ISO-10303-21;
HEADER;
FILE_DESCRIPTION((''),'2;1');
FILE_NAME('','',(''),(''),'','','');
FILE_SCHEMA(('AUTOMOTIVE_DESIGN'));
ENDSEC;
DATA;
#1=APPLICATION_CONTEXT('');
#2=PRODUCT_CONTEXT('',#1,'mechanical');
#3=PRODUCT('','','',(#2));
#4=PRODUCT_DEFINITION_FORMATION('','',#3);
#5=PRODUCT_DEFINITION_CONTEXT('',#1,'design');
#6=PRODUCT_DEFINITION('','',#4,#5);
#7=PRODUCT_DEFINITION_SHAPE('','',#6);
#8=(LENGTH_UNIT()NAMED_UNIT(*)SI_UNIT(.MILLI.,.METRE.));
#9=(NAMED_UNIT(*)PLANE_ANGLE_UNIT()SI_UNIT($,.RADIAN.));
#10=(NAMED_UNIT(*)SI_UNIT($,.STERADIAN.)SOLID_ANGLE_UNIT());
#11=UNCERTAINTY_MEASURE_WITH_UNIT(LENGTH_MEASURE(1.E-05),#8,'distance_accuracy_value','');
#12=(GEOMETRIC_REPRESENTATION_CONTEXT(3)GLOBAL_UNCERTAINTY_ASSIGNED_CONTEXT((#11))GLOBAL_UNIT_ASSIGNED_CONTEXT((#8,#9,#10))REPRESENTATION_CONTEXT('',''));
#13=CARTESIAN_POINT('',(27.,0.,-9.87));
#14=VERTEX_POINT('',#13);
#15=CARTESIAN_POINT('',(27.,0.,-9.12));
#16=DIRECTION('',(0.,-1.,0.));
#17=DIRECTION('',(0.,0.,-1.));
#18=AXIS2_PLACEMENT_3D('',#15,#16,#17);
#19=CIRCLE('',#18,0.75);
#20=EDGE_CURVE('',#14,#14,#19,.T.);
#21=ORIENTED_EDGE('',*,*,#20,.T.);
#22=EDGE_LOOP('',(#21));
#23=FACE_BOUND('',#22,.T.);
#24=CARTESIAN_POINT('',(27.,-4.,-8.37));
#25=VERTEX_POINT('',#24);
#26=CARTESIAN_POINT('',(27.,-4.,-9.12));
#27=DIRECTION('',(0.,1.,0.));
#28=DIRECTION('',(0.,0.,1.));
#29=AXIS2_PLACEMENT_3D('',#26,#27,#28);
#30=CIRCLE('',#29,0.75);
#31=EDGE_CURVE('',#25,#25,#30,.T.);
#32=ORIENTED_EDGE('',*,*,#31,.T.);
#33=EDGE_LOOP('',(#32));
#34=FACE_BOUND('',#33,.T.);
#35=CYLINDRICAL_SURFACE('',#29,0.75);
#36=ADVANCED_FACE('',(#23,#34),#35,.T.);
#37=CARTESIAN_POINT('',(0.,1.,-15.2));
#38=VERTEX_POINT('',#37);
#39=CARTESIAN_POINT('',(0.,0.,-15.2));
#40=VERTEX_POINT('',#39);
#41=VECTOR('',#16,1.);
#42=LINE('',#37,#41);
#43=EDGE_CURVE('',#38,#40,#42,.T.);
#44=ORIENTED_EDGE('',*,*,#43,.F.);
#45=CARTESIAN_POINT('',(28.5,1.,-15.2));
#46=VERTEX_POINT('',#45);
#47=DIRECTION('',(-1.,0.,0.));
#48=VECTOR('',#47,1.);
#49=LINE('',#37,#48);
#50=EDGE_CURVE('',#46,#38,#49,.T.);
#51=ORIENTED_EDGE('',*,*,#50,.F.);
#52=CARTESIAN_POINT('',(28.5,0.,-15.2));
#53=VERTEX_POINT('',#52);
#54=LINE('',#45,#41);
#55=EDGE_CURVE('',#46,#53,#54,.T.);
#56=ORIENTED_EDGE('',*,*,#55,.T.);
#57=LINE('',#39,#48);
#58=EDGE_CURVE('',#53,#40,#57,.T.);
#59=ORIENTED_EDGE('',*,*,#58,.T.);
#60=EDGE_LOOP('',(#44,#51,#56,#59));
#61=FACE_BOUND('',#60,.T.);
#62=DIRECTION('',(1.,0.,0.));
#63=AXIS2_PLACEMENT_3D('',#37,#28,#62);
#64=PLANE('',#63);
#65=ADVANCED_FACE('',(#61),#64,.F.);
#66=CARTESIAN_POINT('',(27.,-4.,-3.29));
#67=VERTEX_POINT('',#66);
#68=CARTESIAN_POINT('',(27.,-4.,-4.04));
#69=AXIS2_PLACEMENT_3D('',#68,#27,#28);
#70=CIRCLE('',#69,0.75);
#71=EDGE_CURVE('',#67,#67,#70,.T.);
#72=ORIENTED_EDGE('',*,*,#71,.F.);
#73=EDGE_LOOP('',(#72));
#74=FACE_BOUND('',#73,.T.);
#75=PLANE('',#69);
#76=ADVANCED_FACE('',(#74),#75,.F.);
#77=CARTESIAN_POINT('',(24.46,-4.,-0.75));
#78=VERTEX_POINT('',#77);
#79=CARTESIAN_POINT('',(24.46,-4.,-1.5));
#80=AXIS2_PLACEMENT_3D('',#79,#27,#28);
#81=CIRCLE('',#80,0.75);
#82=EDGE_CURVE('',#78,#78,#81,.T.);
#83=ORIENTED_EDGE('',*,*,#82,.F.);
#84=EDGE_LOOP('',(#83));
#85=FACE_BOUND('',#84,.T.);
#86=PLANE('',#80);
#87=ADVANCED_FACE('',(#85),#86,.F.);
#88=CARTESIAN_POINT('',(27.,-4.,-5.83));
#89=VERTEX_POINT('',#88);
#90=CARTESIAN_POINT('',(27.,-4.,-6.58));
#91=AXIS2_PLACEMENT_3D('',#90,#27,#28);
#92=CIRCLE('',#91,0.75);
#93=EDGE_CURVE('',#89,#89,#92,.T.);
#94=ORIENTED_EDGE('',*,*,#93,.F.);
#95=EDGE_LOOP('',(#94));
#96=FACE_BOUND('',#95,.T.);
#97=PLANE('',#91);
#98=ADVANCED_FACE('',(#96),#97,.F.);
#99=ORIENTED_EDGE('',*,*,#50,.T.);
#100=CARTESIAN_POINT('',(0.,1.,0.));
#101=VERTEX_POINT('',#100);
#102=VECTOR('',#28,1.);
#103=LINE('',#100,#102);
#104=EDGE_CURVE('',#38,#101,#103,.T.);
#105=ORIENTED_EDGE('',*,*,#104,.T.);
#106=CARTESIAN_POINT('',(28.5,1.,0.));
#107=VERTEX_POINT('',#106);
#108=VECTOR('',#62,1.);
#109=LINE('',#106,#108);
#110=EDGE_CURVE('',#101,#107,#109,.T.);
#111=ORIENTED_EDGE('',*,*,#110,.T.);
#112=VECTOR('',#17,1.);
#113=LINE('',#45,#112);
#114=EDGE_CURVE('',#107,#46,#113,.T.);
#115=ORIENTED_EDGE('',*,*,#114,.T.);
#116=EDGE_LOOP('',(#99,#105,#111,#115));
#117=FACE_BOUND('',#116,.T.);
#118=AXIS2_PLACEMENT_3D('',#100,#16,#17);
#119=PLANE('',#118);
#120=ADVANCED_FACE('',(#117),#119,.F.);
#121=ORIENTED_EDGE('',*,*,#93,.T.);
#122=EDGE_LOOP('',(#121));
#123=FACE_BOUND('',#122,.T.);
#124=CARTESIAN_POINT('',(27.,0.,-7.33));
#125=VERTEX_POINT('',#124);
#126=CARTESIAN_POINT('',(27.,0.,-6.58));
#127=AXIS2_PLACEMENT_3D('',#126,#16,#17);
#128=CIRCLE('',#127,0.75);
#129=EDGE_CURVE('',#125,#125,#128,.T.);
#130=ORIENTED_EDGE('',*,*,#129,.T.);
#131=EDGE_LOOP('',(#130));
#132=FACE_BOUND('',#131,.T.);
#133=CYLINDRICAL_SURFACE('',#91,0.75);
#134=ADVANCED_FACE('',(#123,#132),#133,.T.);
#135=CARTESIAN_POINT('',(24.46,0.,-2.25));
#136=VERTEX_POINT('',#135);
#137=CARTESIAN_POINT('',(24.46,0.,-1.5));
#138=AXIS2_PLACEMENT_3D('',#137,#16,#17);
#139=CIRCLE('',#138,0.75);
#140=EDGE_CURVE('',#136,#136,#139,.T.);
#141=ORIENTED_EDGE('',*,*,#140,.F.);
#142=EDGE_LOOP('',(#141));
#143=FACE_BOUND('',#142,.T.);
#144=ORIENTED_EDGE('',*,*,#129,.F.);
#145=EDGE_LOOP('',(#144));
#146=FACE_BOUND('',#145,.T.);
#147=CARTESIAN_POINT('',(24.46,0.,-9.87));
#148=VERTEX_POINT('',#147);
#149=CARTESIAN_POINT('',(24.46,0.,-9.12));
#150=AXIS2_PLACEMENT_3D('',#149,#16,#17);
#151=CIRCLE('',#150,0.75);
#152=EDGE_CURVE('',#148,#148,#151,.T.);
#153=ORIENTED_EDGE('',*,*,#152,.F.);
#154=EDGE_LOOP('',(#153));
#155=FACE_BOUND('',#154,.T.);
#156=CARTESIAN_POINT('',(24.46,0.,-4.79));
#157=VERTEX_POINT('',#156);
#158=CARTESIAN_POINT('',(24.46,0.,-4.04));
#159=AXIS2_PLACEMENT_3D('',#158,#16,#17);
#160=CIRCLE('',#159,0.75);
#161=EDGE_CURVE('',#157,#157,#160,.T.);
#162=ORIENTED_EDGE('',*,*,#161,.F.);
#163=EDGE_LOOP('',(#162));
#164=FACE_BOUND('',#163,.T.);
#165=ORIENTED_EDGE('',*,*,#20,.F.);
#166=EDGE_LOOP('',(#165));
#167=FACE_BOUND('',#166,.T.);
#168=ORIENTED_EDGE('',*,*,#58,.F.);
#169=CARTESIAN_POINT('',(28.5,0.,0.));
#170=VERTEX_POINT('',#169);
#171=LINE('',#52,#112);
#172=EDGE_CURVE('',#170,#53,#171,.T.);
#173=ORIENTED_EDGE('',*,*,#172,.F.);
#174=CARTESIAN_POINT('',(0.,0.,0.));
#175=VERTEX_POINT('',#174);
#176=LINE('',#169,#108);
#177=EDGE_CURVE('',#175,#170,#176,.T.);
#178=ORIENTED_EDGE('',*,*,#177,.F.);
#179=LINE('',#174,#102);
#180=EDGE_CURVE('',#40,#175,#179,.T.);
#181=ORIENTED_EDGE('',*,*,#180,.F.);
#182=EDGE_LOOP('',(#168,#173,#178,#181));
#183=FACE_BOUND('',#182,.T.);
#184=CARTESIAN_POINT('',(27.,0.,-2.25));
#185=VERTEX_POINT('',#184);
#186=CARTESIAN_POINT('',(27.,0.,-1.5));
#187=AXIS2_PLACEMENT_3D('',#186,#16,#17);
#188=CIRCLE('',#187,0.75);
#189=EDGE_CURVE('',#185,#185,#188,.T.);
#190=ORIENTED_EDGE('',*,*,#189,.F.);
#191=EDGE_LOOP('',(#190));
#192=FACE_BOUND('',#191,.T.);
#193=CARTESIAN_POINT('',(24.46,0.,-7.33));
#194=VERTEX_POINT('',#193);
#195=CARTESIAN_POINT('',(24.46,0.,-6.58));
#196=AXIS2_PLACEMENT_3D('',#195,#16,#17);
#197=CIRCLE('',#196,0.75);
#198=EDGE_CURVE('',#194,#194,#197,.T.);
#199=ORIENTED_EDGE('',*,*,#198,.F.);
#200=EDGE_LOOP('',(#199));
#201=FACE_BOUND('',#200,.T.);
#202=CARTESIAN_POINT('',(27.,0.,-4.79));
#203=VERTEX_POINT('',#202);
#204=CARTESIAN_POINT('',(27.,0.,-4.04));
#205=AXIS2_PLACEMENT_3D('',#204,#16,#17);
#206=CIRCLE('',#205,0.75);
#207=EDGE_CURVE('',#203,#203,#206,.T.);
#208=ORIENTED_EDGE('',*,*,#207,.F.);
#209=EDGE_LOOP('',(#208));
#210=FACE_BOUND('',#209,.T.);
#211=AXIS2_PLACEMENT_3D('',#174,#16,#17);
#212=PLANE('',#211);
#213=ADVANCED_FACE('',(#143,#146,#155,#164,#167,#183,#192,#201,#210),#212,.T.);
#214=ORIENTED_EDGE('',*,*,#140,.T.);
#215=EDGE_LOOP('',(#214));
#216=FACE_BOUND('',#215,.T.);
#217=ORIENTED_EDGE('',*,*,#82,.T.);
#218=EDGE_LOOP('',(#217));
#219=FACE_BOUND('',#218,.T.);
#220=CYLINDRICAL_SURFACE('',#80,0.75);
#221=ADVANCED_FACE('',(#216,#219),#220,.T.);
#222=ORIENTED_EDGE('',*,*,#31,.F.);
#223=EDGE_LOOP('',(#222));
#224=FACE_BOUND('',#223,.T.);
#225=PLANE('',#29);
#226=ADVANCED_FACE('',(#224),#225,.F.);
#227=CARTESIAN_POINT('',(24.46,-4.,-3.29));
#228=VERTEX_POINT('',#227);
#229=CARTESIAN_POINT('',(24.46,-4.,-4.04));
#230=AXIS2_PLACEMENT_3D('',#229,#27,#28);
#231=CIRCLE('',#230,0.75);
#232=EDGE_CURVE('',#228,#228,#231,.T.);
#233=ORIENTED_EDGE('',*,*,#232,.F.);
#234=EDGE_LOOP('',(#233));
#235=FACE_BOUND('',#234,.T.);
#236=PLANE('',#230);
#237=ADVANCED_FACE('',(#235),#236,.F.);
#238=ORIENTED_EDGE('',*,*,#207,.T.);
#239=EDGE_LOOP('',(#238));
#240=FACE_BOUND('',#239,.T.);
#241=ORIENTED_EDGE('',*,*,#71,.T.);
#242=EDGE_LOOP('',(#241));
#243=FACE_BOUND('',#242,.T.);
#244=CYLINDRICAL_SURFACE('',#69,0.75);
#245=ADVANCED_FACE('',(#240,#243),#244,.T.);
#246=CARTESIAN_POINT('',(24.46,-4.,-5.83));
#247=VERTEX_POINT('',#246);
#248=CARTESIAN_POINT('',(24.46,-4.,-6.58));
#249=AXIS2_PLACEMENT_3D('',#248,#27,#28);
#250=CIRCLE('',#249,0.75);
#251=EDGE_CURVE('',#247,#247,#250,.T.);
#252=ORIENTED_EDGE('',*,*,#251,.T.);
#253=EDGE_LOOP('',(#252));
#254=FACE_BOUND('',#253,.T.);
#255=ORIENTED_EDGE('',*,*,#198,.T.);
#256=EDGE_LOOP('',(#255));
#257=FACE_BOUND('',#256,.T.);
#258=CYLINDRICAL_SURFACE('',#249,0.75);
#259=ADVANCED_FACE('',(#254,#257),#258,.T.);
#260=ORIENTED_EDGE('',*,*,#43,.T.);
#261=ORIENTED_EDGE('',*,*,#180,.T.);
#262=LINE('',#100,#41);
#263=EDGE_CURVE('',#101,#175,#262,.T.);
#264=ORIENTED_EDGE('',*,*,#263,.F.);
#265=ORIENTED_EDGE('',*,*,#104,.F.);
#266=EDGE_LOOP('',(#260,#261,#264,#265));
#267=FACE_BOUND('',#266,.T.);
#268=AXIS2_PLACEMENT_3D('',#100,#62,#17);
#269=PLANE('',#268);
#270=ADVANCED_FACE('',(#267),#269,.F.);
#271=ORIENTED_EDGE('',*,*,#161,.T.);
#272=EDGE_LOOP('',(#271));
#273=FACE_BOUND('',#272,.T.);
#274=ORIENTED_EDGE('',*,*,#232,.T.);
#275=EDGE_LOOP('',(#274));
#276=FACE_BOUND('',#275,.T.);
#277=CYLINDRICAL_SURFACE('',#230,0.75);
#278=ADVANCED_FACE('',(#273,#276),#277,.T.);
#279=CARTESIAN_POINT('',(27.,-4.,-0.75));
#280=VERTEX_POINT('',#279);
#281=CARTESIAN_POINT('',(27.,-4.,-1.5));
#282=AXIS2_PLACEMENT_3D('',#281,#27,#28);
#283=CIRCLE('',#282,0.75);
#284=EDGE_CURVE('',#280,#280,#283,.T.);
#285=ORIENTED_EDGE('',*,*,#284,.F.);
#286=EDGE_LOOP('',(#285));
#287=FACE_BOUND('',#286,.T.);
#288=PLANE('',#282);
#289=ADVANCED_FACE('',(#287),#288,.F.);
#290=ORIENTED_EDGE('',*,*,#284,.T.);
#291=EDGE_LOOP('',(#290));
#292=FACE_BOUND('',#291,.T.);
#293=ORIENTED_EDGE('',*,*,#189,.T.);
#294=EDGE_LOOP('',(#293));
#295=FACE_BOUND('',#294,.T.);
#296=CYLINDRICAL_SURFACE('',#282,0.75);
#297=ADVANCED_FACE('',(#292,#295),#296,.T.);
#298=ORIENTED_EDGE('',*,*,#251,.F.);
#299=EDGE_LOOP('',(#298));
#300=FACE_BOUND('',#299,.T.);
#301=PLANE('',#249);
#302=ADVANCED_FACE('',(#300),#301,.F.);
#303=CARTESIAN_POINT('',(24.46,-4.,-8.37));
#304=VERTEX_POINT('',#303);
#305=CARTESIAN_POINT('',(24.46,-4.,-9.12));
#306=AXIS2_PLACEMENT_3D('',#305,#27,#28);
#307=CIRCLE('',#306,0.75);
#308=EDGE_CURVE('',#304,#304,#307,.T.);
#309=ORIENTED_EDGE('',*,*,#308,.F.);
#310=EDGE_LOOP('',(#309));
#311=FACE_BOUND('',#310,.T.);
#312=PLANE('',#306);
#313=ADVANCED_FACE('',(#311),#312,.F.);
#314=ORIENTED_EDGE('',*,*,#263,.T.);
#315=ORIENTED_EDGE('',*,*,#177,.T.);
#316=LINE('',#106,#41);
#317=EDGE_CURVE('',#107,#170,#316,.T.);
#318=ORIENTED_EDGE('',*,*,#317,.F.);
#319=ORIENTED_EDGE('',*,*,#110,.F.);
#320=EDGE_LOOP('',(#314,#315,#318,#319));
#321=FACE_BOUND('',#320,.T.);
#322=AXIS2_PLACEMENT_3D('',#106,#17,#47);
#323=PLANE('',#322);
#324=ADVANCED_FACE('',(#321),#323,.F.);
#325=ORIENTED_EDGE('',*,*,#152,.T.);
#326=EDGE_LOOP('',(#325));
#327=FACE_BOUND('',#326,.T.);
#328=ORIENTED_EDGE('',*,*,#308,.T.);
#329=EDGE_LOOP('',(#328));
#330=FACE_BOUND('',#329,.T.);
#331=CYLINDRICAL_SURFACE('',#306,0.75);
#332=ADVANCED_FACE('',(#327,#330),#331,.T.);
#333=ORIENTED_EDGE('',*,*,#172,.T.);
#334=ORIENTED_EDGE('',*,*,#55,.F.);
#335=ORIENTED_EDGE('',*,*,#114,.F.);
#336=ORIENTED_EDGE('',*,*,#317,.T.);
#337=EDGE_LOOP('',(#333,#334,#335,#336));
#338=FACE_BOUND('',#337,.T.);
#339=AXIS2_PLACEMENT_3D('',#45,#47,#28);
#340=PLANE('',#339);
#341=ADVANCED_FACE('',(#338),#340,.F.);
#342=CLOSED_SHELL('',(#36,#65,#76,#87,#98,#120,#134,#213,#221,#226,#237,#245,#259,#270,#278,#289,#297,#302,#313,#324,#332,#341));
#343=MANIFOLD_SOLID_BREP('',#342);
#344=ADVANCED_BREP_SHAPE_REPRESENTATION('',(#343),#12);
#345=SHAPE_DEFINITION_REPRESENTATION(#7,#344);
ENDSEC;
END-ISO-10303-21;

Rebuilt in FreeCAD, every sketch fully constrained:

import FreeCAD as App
import Part
import Sketcher
from FreeCAD import Vector

doc = App.newDocument("Part")
body = doc.addObject("PartDesign::Body", "Body")

# Sketch on XZ plane
sketch1 = body.newObject("Sketcher::SketchObject", "Sketch")
sketch1.AttachmentSupport = (doc.getObject("XZ_Plane"), [""])
sketch1.MapMode = "FlatFace"
sketch1.addGeometry([
    Part.LineSegment(Vector(0, -15, 0), Vector(0, 0, 0)),
    Part.LineSegment(Vector(0, 0, 0), Vector(28, 0, 0)),
    Part.LineSegment(Vector(28, 0, 0), Vector(28, -15, 0)),
    Part.LineSegment(Vector(28, -15, 0), Vector(0, -15, 0)),
], False)
sketch1.addConstraint([
    Sketcher.Constraint("Coincident", 0, 2, 1, 1),
    Sketcher.Constraint("Coincident", 1, 2, 2, 1),
    Sketcher.Constraint("Coincident", 2, 2, 3, 1),
    Sketcher.Constraint("Coincident", 3, 2, 0, 1),
    Sketcher.Constraint("Vertical", 0),
    Sketcher.Constraint("Horizontal", 1),
    Sketcher.Constraint("Vertical", 2),
    Sketcher.Constraint("Horizontal", 3),
    Sketcher.Constraint("Coincident", 0, 2, -1, 1),
    Sketcher.Constraint("DistanceX", 1, 1, 1, 2, 28.5),
    Sketcher.Constraint("DistanceY", 0, 1, 0, 2, 15.2),
])
pad1 = body.newObject("PartDesign::Pad", "Pad")
pad1.Profile = sketch1
pad1.Length = 1
pad1.Reversed = True

# Sketch on XZ plane
sketch2 = body.newObject("Sketcher::SketchObject", "Sketch001")
sketch2.AttachmentSupport = (doc.getObject("XZ_Plane"), [""])
sketch2.MapMode = "FlatFace"
sketch2.AttachmentOffset = App.Placement(Vector(0, 0, -1), App.Rotation())
sketch2.addGeometry([
    Part.Circle(Vector(27, -1.5, 0), Vector(0, 0, 1), 0.8),  # 0
    Part.Circle(Vector(24.5, -1.5, 0), Vector(0, 0, 1), 0.8),  # 1
    Part.Circle(Vector(24.5, -4, 0), Vector(0, 0, 1), 0.8),  # 2
    Part.Circle(Vector(27, -4, 0), Vector(0, 0, 1), 0.8),  # 3
    Part.Circle(Vector(24.5, -6.6, 0), Vector(0, 0, 1), 0.8),  # 4
    Part.Circle(Vector(27, -6.6, 0), Vector(0, 0, 1), 0.8),  # 5
    Part.Circle(Vector(24.5, -9.1, 0), Vector(0, 0, 1), 0.8),  # 6
    Part.Circle(Vector(27, -9.1, 0), Vector(0, 0, 1), 0.8),  # 7
], False)
sketch2.addConstraint([
    Sketcher.Constraint("Equal", 0, 1),
    Sketcher.Constraint("Equal", 1, 2),
    Sketcher.Constraint("Equal", 2, 3),
    Sketcher.Constraint("Equal", 3, 4),
    Sketcher.Constraint("Equal", 4, 5),
    Sketcher.Constraint("Equal", 5, 6),
    Sketcher.Constraint("Equal", 6, 7),
    Sketcher.Constraint("Horizontal", 0, 3, 1, 3),
    Sketcher.Constraint("Horizontal", 2, 3, 3, 3),
    Sketcher.Constraint("Horizontal", 4, 3, 5, 3),
    Sketcher.Constraint("Horizontal", 6, 3, 7, 3),
    Sketcher.Constraint("Vertical", 1, 3, 2, 3),
    Sketcher.Constraint("Vertical", 0, 3, 3, 3),
    Sketcher.Constraint("Vertical", 2, 3, 4, 3),
    Sketcher.Constraint("Vertical", 3, 3, 5, 3),
    Sketcher.Constraint("Vertical", 4, 3, 6, 3),
    Sketcher.Constraint("Vertical", 5, 3, 7, 3),
    Sketcher.Constraint("Diameter", 0, 1.5),
    Sketcher.Constraint("DistanceX", -1, 1, 0, 3, 27.0),
    Sketcher.Constraint("DistanceY", 0, 3, -1, 1, 1.5),
    Sketcher.Constraint("DistanceX", -1, 1, 1, 3, 24.46),
    Sketcher.Constraint("DistanceY", 2, 3, -1, 1, 4.04),
    Sketcher.Constraint("DistanceY", 4, 3, -1, 1, 6.58),
    Sketcher.Constraint("DistanceY", 6, 3, -1, 1, 9.12),
])
pad2 = body.newObject("PartDesign::Pad", "Pad001")
pad2.Profile = sketch2
pad2.Length = 5

doc.recompute()
